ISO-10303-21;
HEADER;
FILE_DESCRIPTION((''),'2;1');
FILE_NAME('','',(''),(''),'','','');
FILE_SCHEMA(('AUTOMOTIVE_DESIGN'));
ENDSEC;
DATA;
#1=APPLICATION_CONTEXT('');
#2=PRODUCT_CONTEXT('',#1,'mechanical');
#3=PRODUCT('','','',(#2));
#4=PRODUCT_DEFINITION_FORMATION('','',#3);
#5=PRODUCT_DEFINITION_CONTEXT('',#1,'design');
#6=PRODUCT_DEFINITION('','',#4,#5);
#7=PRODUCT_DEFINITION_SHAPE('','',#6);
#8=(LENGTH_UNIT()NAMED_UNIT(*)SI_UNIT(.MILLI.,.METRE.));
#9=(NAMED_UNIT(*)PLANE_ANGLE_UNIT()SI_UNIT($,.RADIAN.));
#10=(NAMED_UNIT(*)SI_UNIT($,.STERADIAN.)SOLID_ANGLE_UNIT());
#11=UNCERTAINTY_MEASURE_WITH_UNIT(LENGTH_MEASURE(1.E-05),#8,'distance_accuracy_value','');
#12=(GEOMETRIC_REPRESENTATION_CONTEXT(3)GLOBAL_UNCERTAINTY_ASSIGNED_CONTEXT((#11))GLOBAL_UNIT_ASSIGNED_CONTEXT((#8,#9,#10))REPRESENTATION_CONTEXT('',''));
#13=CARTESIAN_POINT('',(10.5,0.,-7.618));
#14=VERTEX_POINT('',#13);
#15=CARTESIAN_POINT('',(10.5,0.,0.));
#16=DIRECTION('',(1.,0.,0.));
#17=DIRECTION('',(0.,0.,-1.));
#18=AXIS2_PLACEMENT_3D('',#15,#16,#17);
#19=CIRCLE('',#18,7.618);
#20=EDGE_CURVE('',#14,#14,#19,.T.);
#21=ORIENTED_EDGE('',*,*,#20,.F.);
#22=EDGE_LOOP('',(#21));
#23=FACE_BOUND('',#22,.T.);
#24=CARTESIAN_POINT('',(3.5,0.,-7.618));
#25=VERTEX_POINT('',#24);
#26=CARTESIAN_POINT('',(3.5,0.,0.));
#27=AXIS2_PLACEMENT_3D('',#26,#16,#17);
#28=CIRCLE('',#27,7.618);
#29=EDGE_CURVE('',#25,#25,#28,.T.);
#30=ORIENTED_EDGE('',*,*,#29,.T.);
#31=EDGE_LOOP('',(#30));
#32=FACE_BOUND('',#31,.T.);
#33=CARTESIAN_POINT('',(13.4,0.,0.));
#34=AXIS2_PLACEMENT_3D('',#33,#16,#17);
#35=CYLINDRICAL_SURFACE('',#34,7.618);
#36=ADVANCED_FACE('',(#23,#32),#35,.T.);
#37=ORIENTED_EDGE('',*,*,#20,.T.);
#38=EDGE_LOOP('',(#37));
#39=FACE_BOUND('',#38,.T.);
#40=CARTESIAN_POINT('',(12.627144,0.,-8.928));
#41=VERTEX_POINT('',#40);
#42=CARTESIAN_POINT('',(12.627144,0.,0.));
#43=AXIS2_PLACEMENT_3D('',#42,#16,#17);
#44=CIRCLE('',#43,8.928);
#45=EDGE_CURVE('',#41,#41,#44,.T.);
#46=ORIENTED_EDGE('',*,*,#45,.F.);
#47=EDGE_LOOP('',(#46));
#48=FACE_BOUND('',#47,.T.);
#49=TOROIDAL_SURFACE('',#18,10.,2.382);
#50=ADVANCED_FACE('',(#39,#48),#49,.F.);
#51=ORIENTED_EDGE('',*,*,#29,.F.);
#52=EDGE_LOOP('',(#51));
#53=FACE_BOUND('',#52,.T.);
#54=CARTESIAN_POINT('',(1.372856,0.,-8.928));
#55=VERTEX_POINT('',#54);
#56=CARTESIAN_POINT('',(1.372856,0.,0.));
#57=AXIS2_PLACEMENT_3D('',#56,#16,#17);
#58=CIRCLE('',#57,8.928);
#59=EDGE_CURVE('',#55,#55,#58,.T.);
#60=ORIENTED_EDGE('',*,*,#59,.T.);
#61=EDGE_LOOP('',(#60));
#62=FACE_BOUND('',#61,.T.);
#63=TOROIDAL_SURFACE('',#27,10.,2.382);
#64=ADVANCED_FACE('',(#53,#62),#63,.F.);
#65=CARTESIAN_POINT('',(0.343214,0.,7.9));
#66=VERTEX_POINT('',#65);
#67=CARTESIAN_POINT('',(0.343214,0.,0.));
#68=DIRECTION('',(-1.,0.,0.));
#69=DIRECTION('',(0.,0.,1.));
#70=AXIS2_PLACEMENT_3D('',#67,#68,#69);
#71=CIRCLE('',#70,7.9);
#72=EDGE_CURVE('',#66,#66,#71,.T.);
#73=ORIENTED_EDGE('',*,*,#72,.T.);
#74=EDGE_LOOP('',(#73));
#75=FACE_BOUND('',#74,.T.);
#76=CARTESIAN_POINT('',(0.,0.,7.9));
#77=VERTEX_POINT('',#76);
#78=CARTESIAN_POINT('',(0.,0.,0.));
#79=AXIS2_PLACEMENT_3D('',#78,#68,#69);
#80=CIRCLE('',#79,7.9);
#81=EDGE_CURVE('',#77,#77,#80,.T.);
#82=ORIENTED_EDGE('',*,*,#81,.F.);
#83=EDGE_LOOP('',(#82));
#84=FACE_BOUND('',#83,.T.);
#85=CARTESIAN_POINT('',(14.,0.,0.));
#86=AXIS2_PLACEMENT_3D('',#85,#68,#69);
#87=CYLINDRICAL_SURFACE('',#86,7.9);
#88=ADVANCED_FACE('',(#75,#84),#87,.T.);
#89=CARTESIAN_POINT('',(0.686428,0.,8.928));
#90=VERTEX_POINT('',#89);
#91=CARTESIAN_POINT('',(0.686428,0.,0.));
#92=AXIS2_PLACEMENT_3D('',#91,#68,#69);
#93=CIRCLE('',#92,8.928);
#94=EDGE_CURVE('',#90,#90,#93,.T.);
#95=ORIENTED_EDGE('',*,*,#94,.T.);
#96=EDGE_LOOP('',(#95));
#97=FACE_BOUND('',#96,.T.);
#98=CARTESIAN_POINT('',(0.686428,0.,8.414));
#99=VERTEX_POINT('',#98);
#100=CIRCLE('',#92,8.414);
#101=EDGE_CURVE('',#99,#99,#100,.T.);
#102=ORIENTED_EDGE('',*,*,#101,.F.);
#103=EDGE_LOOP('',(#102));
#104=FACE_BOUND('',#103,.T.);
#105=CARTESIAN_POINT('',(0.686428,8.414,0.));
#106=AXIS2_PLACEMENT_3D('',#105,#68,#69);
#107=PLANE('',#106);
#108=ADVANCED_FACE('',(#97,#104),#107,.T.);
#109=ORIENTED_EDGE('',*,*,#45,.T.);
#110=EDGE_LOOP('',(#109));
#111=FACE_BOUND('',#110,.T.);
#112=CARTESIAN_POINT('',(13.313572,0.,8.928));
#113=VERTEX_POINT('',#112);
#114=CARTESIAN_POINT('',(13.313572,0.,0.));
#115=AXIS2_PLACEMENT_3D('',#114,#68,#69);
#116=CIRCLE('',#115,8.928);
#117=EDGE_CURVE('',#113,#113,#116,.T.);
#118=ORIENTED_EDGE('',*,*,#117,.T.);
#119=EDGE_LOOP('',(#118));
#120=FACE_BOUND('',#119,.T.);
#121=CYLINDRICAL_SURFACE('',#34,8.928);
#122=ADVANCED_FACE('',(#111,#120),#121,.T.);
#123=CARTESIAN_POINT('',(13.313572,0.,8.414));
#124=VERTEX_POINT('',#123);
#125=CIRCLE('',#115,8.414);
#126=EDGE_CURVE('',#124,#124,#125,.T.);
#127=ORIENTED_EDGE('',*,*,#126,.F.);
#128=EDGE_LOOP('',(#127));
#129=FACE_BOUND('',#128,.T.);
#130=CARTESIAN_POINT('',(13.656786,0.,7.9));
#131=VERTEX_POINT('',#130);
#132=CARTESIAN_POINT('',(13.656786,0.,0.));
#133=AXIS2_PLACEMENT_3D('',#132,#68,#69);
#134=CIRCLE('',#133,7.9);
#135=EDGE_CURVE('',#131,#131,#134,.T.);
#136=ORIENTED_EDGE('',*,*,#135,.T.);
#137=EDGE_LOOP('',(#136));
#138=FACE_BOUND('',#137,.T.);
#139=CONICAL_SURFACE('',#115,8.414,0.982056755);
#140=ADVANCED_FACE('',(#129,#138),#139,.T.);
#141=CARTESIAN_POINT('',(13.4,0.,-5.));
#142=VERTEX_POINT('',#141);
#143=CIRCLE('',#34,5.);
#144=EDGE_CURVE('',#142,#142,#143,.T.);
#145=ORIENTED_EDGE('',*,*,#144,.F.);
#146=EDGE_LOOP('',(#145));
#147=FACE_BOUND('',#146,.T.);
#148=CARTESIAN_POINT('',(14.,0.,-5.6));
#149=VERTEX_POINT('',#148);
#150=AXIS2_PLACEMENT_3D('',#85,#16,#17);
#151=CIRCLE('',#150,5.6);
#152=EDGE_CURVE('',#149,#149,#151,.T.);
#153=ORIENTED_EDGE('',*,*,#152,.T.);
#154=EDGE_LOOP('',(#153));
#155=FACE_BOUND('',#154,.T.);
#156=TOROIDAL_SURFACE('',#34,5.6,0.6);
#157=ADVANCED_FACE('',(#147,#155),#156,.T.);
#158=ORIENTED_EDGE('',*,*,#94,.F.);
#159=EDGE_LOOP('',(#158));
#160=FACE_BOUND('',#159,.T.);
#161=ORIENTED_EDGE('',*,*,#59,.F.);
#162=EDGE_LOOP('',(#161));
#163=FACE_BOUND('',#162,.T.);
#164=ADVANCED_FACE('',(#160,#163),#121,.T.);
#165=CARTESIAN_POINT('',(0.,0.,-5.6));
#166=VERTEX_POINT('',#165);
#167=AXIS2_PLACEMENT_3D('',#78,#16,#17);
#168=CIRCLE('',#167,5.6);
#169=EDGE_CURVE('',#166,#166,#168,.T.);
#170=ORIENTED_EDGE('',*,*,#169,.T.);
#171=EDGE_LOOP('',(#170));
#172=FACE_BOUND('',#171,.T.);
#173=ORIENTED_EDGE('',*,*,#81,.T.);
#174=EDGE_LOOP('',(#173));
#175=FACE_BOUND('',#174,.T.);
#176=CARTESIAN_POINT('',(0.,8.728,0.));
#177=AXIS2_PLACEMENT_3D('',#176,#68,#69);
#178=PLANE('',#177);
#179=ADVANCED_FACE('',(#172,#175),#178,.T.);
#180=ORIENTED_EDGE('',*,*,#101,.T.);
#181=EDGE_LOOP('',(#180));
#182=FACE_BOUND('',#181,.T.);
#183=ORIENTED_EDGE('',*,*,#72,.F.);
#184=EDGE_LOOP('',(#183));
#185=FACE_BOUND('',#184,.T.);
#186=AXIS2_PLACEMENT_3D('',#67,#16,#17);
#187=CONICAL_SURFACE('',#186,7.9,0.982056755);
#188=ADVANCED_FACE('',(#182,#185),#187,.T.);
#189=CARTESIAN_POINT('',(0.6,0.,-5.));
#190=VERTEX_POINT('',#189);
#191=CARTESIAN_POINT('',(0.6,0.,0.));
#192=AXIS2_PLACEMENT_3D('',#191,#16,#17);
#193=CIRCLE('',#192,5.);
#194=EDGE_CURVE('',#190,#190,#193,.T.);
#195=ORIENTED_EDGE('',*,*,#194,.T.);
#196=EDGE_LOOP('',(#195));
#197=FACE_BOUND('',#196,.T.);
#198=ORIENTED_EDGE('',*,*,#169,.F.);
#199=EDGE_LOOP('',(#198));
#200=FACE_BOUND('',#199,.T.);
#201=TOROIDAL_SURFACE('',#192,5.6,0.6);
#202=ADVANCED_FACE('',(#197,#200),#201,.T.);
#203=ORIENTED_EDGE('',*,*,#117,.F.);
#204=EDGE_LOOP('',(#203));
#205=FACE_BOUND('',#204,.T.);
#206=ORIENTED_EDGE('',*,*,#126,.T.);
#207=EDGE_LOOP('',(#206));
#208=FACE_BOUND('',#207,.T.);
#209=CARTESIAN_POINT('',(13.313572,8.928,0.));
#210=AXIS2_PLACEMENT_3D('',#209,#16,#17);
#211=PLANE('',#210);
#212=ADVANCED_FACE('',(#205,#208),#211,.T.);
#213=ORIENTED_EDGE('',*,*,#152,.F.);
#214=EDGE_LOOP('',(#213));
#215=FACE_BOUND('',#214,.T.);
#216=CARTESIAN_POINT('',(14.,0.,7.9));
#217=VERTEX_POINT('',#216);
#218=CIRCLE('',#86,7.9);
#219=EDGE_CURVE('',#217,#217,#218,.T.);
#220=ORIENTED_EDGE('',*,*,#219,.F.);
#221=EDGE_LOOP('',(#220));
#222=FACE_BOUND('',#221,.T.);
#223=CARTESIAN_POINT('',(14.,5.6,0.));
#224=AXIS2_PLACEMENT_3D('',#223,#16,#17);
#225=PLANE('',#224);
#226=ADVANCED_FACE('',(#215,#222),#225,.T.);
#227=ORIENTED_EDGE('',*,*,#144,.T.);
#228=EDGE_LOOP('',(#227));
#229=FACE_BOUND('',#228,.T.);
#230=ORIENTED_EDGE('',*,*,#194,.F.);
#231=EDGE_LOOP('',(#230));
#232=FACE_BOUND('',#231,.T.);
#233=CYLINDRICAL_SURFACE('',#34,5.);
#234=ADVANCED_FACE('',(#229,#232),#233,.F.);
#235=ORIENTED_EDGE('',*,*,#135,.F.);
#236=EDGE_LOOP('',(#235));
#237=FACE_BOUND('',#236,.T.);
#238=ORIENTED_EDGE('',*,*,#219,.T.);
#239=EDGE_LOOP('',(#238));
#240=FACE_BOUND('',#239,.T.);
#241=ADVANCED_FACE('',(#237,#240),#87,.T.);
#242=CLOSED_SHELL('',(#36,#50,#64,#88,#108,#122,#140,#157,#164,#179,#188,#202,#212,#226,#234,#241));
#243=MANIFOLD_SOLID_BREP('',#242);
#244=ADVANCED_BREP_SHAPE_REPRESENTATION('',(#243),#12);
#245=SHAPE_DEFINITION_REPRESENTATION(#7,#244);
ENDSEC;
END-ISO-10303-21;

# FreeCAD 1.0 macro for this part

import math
import FreeCAD as App
import Part
import Sketcher

V = App.Vector


def add_polygon(sketch, points):
    """Adds a closed chain of lines whose ends are joined by coincident constraints."""
    first, n = sketch.GeometryCount, len(points)
    for a, b in zip(points, points[1:] + points[:1]):
        sketch.addGeometry(Part.LineSegment(App.Vector(*a, 0), App.Vector(*b, 0)), False)
    for i in range(n):
        sketch.addConstraint(Sketcher.Constraint("Coincident", first + i, 2, first + (i + 1) % n, 1))

doc = App.newDocument("Part")
body = doc.addObject("PartDesign::Body", "Body")

# Sketch on XY plane
sketch1 = doc.addObject("Sketcher::SketchObject", "Sketch")
body.addObject(sketch1)
sketch1.AttachmentSupport = (doc.XY_Plane, [""])
sketch1.MapMode = "FlatFace"
sketch1.addGeometry([
    Part.LineSegment(V(0.6, 5, 0), V(13.4, 5, 0)),  # 0
    Part.ArcOfCircle(Part.Circle(V(13.4, 5.6, 0), V(0, 0, 1), 0.6), math.radians(-90), math.radians(0)),  # 1
    Part.LineSegment(V(14, 5.6, 0), V(14, 8.73, 0)),  # 2
    Part.ArcOfCircle(Part.Circle(V(13.8, 8.73, 0), V(0, 0, 1), 0.2), math.radians(0), math.radians(90)),  # 3
    Part.LineSegment(V(13.8, 8.93, 0), V(12.63, 8.93, 0)),  # 4
    Part.ArcOfCircle(Part.Circle(V(10.5, 10, 0), V(0, 0, 1), 2.38), math.radians(-90), math.radians(-27)),  # 5
    Part.LineSegment(V(10.5, 7.62, 0), V(3.5, 7.62, 0)),  # 6
    Part.ArcOfCircle(Part.Circle(V(3.5, 10, 0), V(0, 0, 1), 2.38), math.radians(-153), math.radians(-90)),  # 7
    Part.LineSegment(V(1.37, 8.93, 0), V(0.2, 8.93, 0)),  # 8
    Part.ArcOfCircle(Part.Circle(V(0.2, 8.73, 0), V(0, 0, 1), 0.2), math.radians(90), math.radians(180)),  # 9
    Part.LineSegment(V(0, 8.73, 0), V(0, 5.6, 0)),  # 10
    Part.ArcOfCircle(Part.Circle(V(0.6, 5.6, 0), V(0, 0, 1), 0.6), math.radians(180), math.radians(270)),  # 11
], False)
sketch1.addConstraint([
    Sketcher.Constraint("Tangent", 0, 2, 1, 1),
    Sketcher.Constraint("Tangent", 1, 2, 2, 1),
    Sketcher.Constraint("Tangent", 2, 2, 3, 1),
    Sketcher.Constraint("Tangent", 3, 2, 4, 1),
    Sketcher.Constraint("Coincident", 4, 2, 5, 2),
    Sketcher.Constraint("Tangent", 5, 1, 6, 1),
    Sketcher.Constraint("Tangent", 6, 2, 7, 2),
    Sketcher.Constraint("Coincident", 7, 1, 8, 1),
    Sketcher.Constraint("Tangent", 8, 2, 9, 1),
    Sketcher.Constraint("Tangent", 9, 2, 10, 1),
    Sketcher.Constraint("Tangent", 10, 2, 11, 1),
    Sketcher.Constraint("Tangent", 11, 2, 0, 1),
    Sketcher.Constraint("Horizontal", 0),
    Sketcher.Constraint("Vertical", 2),
    Sketcher.Constraint("Horizontal", 4),
    Sketcher.Constraint("Horizontal", 6),
    Sketcher.Constraint("Horizontal", 8),
    Sketcher.Constraint("Vertical", 10),
    Sketcher.Constraint("Equal", 5, 7),
    Sketcher.Constraint("Equal", 3, 9),
    Sketcher.Constraint("Equal", 1, 11),
    Sketcher.Constraint("PointOnObject", 9, 2, -2),
    Sketcher.Constraint("Horizontal", 3, 3, 9, 3),
    Sketcher.Constraint("Equal", 4, 8),
    Sketcher.Constraint("Radius", 1, 0.6),
    Sketcher.Constraint("Radius", 3, 0.2),
    Sketcher.Constraint("DistanceX", 6, 2, 6, 1, 7.0),
    Sketcher.Constraint("DistanceX", 0, 1, 0, 2, 12.8),
    Sketcher.Constraint("DistanceY", -1, 1, 5, 3, 10.0),
    Sketcher.Constraint("DistanceY", -1, 1, 0, 2, 5.0),
    Sketcher.Constraint("Radius", 5, 2.382),
    Sketcher.Constraint("DistanceY", 2, 1, 2, 2, 3.128),
])
revolution = doc.addObject("PartDesign::Revolution", "Revolution")
body.addObject(revolution)
revolution.Profile = sketch1
revolution.ReferenceAxis = (sketch1, ["H_Axis"])
revolution.Angle = 360

# Sketch on XY plane
sketch2 = doc.addObject("Sketcher::SketchObject", "Sketch001")
body.addObject(sketch2)
sketch2.AttachmentSupport = (doc.XY_Plane, [""])
sketch2.MapMode = "FlatFace"
add_polygon(sketch2, [(0, 7.9), (0.34, 7.9), (0.69, 8.41), (0.69, 8.93), (13.31, 8.93), (13.31, 8.41), (13.66, 7.9), (14, 7.9), (14, 11.83), (0, 11.83)])  # lines 0-9
sketch2.addConstraint([
    Sketcher.Constraint("Horizontal", 0),
    Sketcher.Constraint("Vertical", 2),
    Sketcher.Constraint("Horizontal", 3),
    Sketcher.Constraint("Vertical", 4),
    Sketcher.Constraint("Horizontal", 6),
    Sketcher.Constraint("Vertical", 7),
    Sketcher.Constraint("Horizontal", 8),
    Sketcher.Constraint("Vertical", 9),
    Sketcher.Constraint("PointOnObject", 8, 2, -2),
    Sketcher.Constraint("Horizontal", 1, 2, 4, 2),
    Sketcher.Constraint("Horizontal", 0, 2, 5, 2),
    Sketcher.Constraint("Equal", 0, 6),
    Sketcher.Constraint("Equal", 1, 5),
    Sketcher.Constraint("DistanceX", 8, 2, 8, 1, 14.0),
    Sketcher.Constraint("DistanceY", -1, 1, 0, 2, 7.9),
    Sketcher.Constraint("DistanceY", 3, 2, 7, 2, 2.9),
    Sketcher.Constraint("DistanceY", 2, 1, 2, 2, 0.514),
    Sketcher.Constraint("DistanceY", 7, 1, 7, 2, 3.928),
    Sketcher.Constraint("DistanceX", 0, 1, 0, 2, 0.343214),
    Sketcher.Constraint("DistanceX", 3, 1, 3, 2, 12.627144),
])
groove = doc.addObject("PartDesign::Groove", "Groove")
body.addObject(groove)
groove.Profile = sketch2
groove.ReferenceAxis = (sketch2, ["H_Axis"])
groove.Angle = 360

doc.recompute()
